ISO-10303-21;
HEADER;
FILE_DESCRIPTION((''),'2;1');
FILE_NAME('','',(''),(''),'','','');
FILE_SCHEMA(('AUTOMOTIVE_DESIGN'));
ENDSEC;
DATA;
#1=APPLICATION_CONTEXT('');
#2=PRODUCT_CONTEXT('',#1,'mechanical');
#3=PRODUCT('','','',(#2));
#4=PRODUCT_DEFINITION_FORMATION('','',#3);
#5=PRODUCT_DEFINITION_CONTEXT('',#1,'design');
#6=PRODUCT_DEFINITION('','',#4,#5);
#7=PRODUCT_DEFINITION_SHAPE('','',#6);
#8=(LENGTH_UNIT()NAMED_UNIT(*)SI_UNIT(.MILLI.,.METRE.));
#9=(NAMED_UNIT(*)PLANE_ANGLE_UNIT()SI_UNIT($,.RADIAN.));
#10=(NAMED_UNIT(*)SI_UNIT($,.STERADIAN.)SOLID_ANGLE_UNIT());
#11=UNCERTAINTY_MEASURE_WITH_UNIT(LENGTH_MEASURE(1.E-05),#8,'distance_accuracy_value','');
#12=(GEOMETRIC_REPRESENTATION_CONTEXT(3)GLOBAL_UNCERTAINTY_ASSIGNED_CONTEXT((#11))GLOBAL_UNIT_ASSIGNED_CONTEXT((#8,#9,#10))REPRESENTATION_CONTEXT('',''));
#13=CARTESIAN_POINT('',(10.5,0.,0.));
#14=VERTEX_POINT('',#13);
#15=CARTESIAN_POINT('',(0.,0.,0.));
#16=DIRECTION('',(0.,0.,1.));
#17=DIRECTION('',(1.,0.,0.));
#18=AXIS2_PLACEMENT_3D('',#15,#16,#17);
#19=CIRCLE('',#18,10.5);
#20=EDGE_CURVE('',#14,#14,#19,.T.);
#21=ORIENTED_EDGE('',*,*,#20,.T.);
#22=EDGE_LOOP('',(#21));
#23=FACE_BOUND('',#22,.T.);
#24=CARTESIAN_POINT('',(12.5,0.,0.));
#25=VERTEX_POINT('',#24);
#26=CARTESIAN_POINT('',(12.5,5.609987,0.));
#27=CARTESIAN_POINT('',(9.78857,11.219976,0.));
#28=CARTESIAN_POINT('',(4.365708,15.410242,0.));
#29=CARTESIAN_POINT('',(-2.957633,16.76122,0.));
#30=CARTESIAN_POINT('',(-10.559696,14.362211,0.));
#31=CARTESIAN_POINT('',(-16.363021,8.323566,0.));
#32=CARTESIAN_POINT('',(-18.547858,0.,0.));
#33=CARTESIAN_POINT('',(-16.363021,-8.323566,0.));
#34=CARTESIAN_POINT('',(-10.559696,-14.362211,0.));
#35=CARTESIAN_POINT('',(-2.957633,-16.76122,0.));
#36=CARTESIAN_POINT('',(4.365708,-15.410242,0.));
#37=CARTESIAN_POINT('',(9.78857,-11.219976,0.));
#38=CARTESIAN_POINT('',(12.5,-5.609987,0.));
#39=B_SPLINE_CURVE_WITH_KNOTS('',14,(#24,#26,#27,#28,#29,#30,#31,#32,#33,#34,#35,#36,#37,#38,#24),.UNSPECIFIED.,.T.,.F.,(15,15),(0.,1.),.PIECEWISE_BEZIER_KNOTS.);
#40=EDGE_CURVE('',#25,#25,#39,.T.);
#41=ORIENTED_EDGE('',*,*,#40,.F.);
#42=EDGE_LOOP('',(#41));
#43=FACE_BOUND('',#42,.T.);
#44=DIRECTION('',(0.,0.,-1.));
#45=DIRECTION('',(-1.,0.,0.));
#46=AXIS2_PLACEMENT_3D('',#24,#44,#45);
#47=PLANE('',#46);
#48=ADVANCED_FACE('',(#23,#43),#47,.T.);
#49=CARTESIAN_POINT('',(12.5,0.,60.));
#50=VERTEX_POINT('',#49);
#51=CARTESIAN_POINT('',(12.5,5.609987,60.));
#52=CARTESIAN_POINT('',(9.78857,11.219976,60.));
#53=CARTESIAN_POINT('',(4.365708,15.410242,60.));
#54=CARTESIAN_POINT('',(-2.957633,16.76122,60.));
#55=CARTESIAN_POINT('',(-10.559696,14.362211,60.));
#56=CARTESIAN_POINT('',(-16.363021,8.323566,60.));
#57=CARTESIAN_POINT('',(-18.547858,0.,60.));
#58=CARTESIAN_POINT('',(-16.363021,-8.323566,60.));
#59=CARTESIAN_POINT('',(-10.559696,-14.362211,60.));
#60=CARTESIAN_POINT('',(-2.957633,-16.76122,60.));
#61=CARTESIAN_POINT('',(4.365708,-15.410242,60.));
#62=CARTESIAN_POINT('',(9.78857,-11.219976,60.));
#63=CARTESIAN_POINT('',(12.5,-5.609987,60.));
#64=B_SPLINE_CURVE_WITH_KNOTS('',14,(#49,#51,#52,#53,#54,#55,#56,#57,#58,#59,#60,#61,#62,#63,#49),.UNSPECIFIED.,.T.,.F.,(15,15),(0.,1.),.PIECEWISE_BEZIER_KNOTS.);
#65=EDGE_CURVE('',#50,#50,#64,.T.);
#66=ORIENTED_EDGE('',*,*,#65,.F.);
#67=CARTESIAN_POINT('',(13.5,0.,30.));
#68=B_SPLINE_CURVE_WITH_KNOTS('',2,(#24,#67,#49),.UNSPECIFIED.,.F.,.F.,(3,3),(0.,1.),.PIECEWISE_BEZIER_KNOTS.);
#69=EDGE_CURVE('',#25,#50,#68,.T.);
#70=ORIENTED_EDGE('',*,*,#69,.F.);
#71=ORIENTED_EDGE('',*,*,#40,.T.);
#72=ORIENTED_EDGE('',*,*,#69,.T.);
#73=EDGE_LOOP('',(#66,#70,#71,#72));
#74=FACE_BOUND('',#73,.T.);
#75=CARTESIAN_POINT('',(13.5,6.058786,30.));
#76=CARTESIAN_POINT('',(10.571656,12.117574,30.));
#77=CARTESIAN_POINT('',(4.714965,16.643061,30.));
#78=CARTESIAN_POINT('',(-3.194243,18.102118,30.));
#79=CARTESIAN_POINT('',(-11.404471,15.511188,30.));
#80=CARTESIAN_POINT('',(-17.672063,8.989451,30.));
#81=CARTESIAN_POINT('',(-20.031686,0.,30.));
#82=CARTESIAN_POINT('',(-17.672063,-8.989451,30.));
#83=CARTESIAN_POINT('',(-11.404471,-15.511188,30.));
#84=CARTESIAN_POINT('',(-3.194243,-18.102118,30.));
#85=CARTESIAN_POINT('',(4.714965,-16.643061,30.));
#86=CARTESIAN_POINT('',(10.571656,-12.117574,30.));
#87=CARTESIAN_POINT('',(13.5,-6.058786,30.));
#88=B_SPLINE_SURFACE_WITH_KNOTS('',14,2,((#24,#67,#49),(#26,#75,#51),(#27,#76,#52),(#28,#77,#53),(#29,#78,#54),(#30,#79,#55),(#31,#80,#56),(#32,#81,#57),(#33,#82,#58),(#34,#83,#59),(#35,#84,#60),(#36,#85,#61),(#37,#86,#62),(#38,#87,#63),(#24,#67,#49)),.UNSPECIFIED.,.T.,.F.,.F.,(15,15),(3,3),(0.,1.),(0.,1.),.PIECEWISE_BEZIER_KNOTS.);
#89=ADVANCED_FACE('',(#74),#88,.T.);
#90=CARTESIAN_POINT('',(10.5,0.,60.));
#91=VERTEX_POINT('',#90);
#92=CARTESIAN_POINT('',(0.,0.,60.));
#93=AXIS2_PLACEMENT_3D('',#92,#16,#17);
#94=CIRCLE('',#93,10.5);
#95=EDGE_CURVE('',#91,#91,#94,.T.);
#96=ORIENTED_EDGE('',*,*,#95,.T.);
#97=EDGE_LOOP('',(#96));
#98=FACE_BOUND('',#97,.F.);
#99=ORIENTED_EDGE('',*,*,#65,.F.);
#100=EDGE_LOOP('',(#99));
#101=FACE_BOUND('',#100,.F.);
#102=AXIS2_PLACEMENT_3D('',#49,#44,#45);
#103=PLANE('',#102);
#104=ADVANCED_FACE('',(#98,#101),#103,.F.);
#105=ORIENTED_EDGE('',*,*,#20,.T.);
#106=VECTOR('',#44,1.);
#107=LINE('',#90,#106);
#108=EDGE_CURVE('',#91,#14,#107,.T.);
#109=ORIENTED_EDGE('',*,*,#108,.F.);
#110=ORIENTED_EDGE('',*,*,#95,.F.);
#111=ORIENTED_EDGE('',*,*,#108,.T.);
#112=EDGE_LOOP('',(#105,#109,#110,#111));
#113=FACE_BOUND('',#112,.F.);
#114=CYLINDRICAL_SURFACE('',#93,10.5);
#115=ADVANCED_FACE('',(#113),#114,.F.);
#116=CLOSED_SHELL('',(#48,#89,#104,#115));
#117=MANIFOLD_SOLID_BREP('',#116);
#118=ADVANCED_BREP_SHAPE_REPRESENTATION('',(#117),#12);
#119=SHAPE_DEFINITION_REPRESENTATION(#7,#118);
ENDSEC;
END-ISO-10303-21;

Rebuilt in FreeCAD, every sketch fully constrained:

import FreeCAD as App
import Part
import Sketcher
Q = App.Units.Quantity

doc = App.newDocument("Part")
body = doc.addObject("PartDesign::Body", "Body")

# Sketch on XY plane
sketch1 = body.newObject("Sketcher::SketchObject", "Sketch")
sketch1.AttachmentSupport = (doc.getObject("XY_Plane"), [""])
sketch1.MapMode = "FlatFace"
sketch1.addGeometry(Part.Circle(App.Vector(0, 0, 0), App.Vector(0, 0, 1), 12), False)
sketch1.addConstraint([
    Sketcher.Constraint("Coincident", 0, 3, -1, 1),
    Sketcher.Constraint("Diameter", 0, Q("25 mm")),
])

# Sketch on XY plane
sketch2 = body.newObject("Sketcher::SketchObject", "Sketch001")
sketch2.AttachmentSupport = (doc.getObject("XY_Plane"), [""])
sketch2.MapMode = "FlatFace"
sketch2.AttachmentOffset = App.Placement(App.Vector(0, 0, 30), App.Rotation())
sketch2.addGeometry(Part.Circle(App.Vector(0, 0, 0), App.Vector(0, 0, 1), 13), False)
sketch2.addConstraint([
    Sketcher.Constraint("Coincident", 0, 3, -1, 1),
    Sketcher.Constraint("Diameter", 0, Q("26 mm")),
])

# Sketch on XY plane
sketch3 = body.newObject("Sketcher::SketchObject", "Sketch002")
sketch3.AttachmentSupport = (doc.getObject("XY_Plane"), [""])
sketch3.MapMode = "FlatFace"
sketch3.AttachmentOffset = App.Placement(App.Vector(0, 0, 60), App.Rotation())
sketch3.addGeometry(Part.Circle(App.Vector(0, 0, 0), App.Vector(0, 0, 1), 12), False)
sketch3.addConstraint([
    Sketcher.Constraint("Coincident", 0, 3, -1, 1),
    Sketcher.Constraint("Diameter", 0, Q("25 mm")),
])

additiveloft = body.newObject("PartDesign::AdditiveLoft", "AdditiveLoft")
additiveloft.Profile = sketch1
additiveloft.Sections = [sketch2, sketch3]

# Sketch on XY plane
sketch4 = body.newObject("Sketcher::SketchObject", "Sketch003")
sketch4.AttachmentSupport = (doc.getObject("XY_Plane"), [""])
sketch4.MapMode = "FlatFace"
sketch4.AttachmentOffset = App.Placement(App.Vector(0, 0, 60), App.Rotation())
sketch4.addGeometry(Part.Circle(App.Vector(0, 0, 0), App.Vector(0, 0, 1), 10), False)
sketch4.addConstraint([
    Sketcher.Constraint("Coincident", 0, 3, -1, 1),
    Sketcher.Constraint("Diameter", 0, Q("21 mm")),
])
pocket1 = body.newObject("PartDesign::Pocket", "Pocket")
pocket1.Profile = sketch4
pocket1.Type = "ThroughAll"

doc.recompute()
